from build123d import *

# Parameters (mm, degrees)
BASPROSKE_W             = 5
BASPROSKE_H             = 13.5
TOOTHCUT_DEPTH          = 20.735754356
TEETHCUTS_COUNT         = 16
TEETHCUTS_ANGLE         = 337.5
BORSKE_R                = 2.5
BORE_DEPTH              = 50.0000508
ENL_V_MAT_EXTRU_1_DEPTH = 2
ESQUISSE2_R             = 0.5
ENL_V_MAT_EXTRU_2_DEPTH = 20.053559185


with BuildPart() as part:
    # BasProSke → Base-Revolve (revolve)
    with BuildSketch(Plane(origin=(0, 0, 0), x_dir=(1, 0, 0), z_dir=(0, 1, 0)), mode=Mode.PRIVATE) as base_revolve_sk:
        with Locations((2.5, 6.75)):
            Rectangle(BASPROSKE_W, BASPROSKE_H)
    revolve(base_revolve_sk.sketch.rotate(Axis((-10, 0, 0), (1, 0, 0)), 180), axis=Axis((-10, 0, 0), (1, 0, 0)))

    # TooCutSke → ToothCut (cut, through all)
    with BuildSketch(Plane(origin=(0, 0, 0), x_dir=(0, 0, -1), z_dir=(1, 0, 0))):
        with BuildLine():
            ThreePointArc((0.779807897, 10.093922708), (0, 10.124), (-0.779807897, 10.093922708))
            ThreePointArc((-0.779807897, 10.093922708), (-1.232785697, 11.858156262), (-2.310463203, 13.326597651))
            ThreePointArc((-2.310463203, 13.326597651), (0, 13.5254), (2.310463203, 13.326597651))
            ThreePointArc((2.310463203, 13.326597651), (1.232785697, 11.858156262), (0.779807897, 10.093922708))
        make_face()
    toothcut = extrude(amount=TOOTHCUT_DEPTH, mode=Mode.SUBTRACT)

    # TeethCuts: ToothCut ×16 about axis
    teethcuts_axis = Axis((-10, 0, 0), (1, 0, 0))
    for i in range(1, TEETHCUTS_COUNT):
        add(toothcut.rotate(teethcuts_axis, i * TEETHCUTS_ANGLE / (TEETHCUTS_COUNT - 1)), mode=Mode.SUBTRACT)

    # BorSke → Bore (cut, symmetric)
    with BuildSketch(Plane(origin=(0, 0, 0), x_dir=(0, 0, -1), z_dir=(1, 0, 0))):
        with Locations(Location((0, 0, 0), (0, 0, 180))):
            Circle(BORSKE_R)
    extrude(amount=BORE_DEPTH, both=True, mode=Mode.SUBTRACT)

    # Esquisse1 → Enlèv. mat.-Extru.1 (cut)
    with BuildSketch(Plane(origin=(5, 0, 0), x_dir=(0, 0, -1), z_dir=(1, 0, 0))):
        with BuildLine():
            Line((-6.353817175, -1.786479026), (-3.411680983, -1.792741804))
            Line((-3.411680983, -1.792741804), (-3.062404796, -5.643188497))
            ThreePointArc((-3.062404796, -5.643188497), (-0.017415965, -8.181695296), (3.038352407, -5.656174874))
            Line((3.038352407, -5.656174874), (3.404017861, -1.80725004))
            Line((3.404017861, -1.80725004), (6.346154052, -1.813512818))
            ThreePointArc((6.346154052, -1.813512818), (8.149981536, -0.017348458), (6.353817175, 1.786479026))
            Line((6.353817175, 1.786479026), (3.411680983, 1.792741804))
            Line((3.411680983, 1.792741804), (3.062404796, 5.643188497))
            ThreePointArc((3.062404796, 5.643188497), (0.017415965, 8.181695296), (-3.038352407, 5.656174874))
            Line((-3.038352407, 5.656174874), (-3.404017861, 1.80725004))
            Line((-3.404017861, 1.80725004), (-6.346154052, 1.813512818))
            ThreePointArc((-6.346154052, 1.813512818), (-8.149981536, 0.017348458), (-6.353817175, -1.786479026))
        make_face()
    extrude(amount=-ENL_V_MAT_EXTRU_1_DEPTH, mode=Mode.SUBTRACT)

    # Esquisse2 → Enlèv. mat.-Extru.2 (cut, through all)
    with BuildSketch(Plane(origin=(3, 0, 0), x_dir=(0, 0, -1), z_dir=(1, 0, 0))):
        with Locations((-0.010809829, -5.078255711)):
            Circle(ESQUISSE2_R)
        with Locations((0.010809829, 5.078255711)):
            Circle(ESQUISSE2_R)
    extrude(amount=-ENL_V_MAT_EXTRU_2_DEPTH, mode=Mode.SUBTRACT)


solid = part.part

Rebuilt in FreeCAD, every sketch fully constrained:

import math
import FreeCAD as App
import Part
import Sketcher
from FreeCAD import Vector

doc = App.newDocument("Part")
body = doc.addObject("PartDesign::Body", "Body")

# Sketch on XZ plane
sketch1 = body.newObject("Sketcher::SketchObject", "Sketch")
sketch1.AttachmentSupport = (doc.getObject("XZ_Plane"), [""])
sketch1.MapMode = "FlatFace"
sketch1.addGeometry([
    Part.LineSegment(Vector(0, -14, 0), Vector(0, 0, 0)),
    Part.LineSegment(Vector(0, 0, 0), Vector(5, 0, 0)),
    Part.LineSegment(Vector(5, 0, 0), Vector(5, -14, 0)),
    Part.LineSegment(Vector(5, -14, 0), Vector(0, -14, 0)),
], False)
sketch1.addConstraint([
    Sketcher.Constraint("Coincident", 0, 2, 1, 1),
    Sketcher.Constraint("Coincident", 1, 2, 2, 1),
    Sketcher.Constraint("Coincident", 2, 2, 3, 1),
    Sketcher.Constraint("Coincident", 3, 2, 0, 1),
    Sketcher.Constraint("Vertical", 0),
    Sketcher.Constraint("Horizontal", 1),
    Sketcher.Constraint("Vertical", 2),
    Sketcher.Constraint("Horizontal", 3),
    Sketcher.Constraint("Coincident", 0, 2, -1, 1),
    Sketcher.Constraint("DistanceX", 1, 1, 1, 2, 5.0),
    Sketcher.Constraint("DistanceY", 0, 1, 0, 2, 13.5),
])
revolution = body.newObject("PartDesign::Revolution", "Revolution")
revolution.Profile = sketch1
revolution.ReferenceAxis = (sketch1, ["H_Axis"])
revolution.Angle = 360

# Sketch on YZ plane
sketch2 = body.newObject("Sketcher::SketchObject", "Sketch001")
sketch2.AttachmentSupport = (doc.getObject("YZ_Plane"), [""])
sketch2.MapMode = "FlatFace"
sketch2.addGeometry([
    Part.ArcOfCircle(Part.Circle(Vector(0, 0, 0), Vector(0, 0, 1), 10.1), math.radians(-4.42), math.radians(4.42)),
    Part.ArcOfCircle(Part.Circle(Vector(9.8, -5.6, 0), Vector(0, 0, 1), 4.8), math.radians(43), math.radians(87)),
    Part.ArcOfCircle(Part.Circle(Vector(0, 0, 0), Vector(0, 0, 1), 13.5), math.radians(-9.84), math.radians(9.84)),
    Part.ArcOfCircle(Part.Circle(Vector(9.8, 5.6, 0), Vector(0, 0, 1), 4.8), math.radians(-87), math.radians(-43)),
], False)
sketch2.addConstraint([
    Sketcher.Constraint("Coincident", 0, 1, 1, 2),
    Sketcher.Constraint("Coincident", 1, 1, 2, 1),
    Sketcher.Constraint("Coincident", 2, 2, 3, 2),
    Sketcher.Constraint("Coincident", 3, 1, 0, 2),
    Sketcher.Constraint("Coincident", 0, 3, -1, 1),
    Sketcher.Constraint("Coincident", 2, 3, -1, 1),
    Sketcher.Constraint("Equal", 1, 3),
    Sketcher.Constraint("Symmetric", 1, 3, 3, 3, -1),
    Sketcher.Constraint("Radius", 1, 4.8),
    Sketcher.Constraint("Radius", 0, 10.124),
    Sketcher.Constraint("Radius", 2, 13.5254),
    Sketcher.Constraint("DistanceY", 1, 3, 3, 3, 11.14209),
    Sketcher.Constraint("DistanceX", 1, 3, 0, 1, 0.28991),
])
pocket1 = body.newObject("PartDesign::Pocket", "Pocket")
pocket1.Profile = sketch2
pocket1.Type = "ThroughAll"
pocket1.Reversed = True
doc.recompute()

polarpattern = body.newObject("PartDesign::PolarPattern", "PolarPattern")
polarpattern.Originals = [pocket1]
polarpattern.Axis = (doc.getObject("X_Axis"), [""])
polarpattern.Angle = 360
polarpattern.Occurrences = 16
body.Tip = polarpattern

# Sketch on YZ plane
sketch3 = body.newObject("Sketcher::SketchObject", "Sketch002")
sketch3.AttachmentSupport = (doc.getObject("YZ_Plane"), [""])
sketch3.MapMode = "FlatFace"
sketch3.addGeometry(Part.Circle(Vector(0, 0, 0), Vector(0, 0, 1), 2.5), False)
sketch3.addConstraint([
    Sketcher.Constraint("Coincident", 0, 3, -1, 1),
    Sketcher.Constraint("Diameter", 0, 5.0),
])
pocket2 = body.newObject("PartDesign::Pocket", "Pocket001")
pocket2.Profile = sketch3
pocket2.Length = 100.000102
pocket2.Midplane = True

# Sketch on YZ plane
sketch4 = body.newObject("Sketcher::SketchObject", "Sketch003")
sketch4.AttachmentSupport = (doc.getObject("YZ_Plane"), [""])
sketch4.MapMode = "FlatFace"
sketch4.AttachmentOffset = App.Placement(Vector(0, 0, 5), App.Rotation())
sketch4.addGeometry([
    Part.LineSegment(Vector(-1.8, 6.4, 0), Vector(-1.8, 3.4, 0)),  # 0
    Part.LineSegment(Vector(-1.8, 3.4, 0), Vector(-5.6, 3.1, 0)),  # 1
    Part.ArcOfCircle(Part.Circle(Vector(-5.1, 0, 0), Vector(0, 0, 1), 3.1), math.radians(100), math.radians(259)),  # 2
    Part.LineSegment(Vector(-5.7, -3, 0), Vector(-1.8, -3.4, 0)),  # 3
    Part.LineSegment(Vector(-1.8, -3.4, 0), Vector(-1.8, -6.3, 0)),  # 4
    Part.ArcOfCircle(Part.Circle(Vector(0, -6.3, 0), Vector(0, 0, 1), 1.8), math.radians(180), math.radians(360)),  # 5
    Part.LineSegment(Vector(1.8, -6.4, 0), Vector(1.8, -3.4, 0)),  # 6
    Part.LineSegment(Vector(1.8, -3.4, 0), Vector(5.6, -3.1, 0)),  # 7
    Part.ArcOfCircle(Part.Circle(Vector(5.1, 0, 0), Vector(0, 0, 1), 3.1), math.radians(-80), math.radians(79)),  # 8
    Part.LineSegment(Vector(5.7, 3, 0), Vector(1.8, 3.4, 0)),  # 9
    Part.LineSegment(Vector(1.8, 3.4, 0), Vector(1.8, 6.3, 0)),  # 10
    Part.ArcOfCircle(Part.Circle(Vector(0, 6.3, 0), Vector(0, 0, 1), 1.8), math.radians(0), math.radians(180)),  # 11
], False)
sketch4.addConstraint([
    Sketcher.Constraint("Coincident", 0, 2, 1, 1),
    Sketcher.Constraint("Coincident", 1, 2, 2, 1),
    Sketcher.Constraint("Coincident", 2, 2, 3, 1),
    Sketcher.Constraint("Coincident", 3, 2, 4, 1),
    Sketcher.Constraint("Tangent", 4, 2, 5, 1),
    Sketcher.Constraint("Tangent", 5, 2, 6, 1),
    Sketcher.Constraint("Coincident", 6, 2, 7, 1),
    Sketcher.Constraint("Coincident", 7, 2, 8, 1),
    Sketcher.Constraint("Coincident", 8, 2, 9, 1),
    Sketcher.Constraint("Coincident", 9, 2, 10, 1),
    Sketcher.Constraint("Tangent", 10, 2, 11, 1),
    Sketcher.Constraint("Tangent", 11, 2, 0, 1),
    Sketcher.Constraint("Equal", 2, 8),
    Sketcher.Constraint("Equal", 5, 11),
    Sketcher.Constraint("Symmetric", 2, 3, 8, 3, -1, 1),
    Sketcher.Constraint("Symmetric", 5, 3, 11, 3, -1, 1),
    Sketcher.Constraint("Symmetric", 0, 2, 6, 2, -1, 1),
    Sketcher.Constraint("Symmetric", 3, 2, 9, 2, -1, 1),
    Sketcher.Constraint("Parallel", 0, 4),
    Sketcher.Constraint("Parallel", 1, 7),
    Sketcher.Constraint("Parallel", 3, 9),
    Sketcher.Constraint("Equal", 1, 3),
    Sketcher.Constraint("Equal", 0, 4),
    Sketcher.Constraint("Radius", 5, 1.8),
    Sketcher.Constraint("Radius", 2, 3.103447),
    Sketcher.Constraint("DistanceY", 3, 2, 0, 2, 6.815699),
    Sketcher.Constraint("DistanceY", 4, 2, 2, 2, 3.307802),
    Sketcher.Constraint("DistanceY", 5, 2, 3, 2, 2.949799),
    Sketcher.Constraint("DistanceY", -1, 1, 2, 3, 0.01081),
    Sketcher.Constraint("DistanceX", 0, 2, -1, 1, 1.792742),
    Sketcher.Constraint("DistanceY", -1, 1, 0, 2, 3.411681),
    Sketcher.Constraint("DistanceX", 1, 2, -1, 1, 5.643188),
])
pocket3 = body.newObject("PartDesign::Pocket", "Pocket002")
pocket3.Profile = sketch4
pocket3.Length = 2

# Sketch on YZ plane
sketch5 = body.newObject("Sketcher::SketchObject", "Sketch004")
sketch5.AttachmentSupport = (doc.getObject("YZ_Plane"), [""])
sketch5.MapMode = "FlatFace"
sketch5.AttachmentOffset = App.Placement(Vector(0, 0, 3), App.Rotation())
sketch5.addGeometry([
    Part.Circle(Vector(-5.1, 0, 0), Vector(0, 0, 1), 0.5),
    Part.Circle(Vector(5.1, 0, 0), Vector(0, 0, 1), 0.5),
], False)
sketch5.addConstraint([
    Sketcher.Constraint("Equal", 0, 1),
    Sketcher.Constraint("Symmetric", 0, 3, 1, 3, -1, 1),
    Sketcher.Constraint("Diameter", 0, 1.0),
    Sketcher.Constraint("DistanceY", -1, 1, 0, 3, 0.01081),
    Sketcher.Constraint("DistanceX", 0, 3, 1, 3, 10.156511),
])
pocket4 = body.newObject("PartDesign::Pocket", "Pocket003")
pocket4.Profile = sketch5
pocket4.Type = "ThroughAll"

doc.recompute()
